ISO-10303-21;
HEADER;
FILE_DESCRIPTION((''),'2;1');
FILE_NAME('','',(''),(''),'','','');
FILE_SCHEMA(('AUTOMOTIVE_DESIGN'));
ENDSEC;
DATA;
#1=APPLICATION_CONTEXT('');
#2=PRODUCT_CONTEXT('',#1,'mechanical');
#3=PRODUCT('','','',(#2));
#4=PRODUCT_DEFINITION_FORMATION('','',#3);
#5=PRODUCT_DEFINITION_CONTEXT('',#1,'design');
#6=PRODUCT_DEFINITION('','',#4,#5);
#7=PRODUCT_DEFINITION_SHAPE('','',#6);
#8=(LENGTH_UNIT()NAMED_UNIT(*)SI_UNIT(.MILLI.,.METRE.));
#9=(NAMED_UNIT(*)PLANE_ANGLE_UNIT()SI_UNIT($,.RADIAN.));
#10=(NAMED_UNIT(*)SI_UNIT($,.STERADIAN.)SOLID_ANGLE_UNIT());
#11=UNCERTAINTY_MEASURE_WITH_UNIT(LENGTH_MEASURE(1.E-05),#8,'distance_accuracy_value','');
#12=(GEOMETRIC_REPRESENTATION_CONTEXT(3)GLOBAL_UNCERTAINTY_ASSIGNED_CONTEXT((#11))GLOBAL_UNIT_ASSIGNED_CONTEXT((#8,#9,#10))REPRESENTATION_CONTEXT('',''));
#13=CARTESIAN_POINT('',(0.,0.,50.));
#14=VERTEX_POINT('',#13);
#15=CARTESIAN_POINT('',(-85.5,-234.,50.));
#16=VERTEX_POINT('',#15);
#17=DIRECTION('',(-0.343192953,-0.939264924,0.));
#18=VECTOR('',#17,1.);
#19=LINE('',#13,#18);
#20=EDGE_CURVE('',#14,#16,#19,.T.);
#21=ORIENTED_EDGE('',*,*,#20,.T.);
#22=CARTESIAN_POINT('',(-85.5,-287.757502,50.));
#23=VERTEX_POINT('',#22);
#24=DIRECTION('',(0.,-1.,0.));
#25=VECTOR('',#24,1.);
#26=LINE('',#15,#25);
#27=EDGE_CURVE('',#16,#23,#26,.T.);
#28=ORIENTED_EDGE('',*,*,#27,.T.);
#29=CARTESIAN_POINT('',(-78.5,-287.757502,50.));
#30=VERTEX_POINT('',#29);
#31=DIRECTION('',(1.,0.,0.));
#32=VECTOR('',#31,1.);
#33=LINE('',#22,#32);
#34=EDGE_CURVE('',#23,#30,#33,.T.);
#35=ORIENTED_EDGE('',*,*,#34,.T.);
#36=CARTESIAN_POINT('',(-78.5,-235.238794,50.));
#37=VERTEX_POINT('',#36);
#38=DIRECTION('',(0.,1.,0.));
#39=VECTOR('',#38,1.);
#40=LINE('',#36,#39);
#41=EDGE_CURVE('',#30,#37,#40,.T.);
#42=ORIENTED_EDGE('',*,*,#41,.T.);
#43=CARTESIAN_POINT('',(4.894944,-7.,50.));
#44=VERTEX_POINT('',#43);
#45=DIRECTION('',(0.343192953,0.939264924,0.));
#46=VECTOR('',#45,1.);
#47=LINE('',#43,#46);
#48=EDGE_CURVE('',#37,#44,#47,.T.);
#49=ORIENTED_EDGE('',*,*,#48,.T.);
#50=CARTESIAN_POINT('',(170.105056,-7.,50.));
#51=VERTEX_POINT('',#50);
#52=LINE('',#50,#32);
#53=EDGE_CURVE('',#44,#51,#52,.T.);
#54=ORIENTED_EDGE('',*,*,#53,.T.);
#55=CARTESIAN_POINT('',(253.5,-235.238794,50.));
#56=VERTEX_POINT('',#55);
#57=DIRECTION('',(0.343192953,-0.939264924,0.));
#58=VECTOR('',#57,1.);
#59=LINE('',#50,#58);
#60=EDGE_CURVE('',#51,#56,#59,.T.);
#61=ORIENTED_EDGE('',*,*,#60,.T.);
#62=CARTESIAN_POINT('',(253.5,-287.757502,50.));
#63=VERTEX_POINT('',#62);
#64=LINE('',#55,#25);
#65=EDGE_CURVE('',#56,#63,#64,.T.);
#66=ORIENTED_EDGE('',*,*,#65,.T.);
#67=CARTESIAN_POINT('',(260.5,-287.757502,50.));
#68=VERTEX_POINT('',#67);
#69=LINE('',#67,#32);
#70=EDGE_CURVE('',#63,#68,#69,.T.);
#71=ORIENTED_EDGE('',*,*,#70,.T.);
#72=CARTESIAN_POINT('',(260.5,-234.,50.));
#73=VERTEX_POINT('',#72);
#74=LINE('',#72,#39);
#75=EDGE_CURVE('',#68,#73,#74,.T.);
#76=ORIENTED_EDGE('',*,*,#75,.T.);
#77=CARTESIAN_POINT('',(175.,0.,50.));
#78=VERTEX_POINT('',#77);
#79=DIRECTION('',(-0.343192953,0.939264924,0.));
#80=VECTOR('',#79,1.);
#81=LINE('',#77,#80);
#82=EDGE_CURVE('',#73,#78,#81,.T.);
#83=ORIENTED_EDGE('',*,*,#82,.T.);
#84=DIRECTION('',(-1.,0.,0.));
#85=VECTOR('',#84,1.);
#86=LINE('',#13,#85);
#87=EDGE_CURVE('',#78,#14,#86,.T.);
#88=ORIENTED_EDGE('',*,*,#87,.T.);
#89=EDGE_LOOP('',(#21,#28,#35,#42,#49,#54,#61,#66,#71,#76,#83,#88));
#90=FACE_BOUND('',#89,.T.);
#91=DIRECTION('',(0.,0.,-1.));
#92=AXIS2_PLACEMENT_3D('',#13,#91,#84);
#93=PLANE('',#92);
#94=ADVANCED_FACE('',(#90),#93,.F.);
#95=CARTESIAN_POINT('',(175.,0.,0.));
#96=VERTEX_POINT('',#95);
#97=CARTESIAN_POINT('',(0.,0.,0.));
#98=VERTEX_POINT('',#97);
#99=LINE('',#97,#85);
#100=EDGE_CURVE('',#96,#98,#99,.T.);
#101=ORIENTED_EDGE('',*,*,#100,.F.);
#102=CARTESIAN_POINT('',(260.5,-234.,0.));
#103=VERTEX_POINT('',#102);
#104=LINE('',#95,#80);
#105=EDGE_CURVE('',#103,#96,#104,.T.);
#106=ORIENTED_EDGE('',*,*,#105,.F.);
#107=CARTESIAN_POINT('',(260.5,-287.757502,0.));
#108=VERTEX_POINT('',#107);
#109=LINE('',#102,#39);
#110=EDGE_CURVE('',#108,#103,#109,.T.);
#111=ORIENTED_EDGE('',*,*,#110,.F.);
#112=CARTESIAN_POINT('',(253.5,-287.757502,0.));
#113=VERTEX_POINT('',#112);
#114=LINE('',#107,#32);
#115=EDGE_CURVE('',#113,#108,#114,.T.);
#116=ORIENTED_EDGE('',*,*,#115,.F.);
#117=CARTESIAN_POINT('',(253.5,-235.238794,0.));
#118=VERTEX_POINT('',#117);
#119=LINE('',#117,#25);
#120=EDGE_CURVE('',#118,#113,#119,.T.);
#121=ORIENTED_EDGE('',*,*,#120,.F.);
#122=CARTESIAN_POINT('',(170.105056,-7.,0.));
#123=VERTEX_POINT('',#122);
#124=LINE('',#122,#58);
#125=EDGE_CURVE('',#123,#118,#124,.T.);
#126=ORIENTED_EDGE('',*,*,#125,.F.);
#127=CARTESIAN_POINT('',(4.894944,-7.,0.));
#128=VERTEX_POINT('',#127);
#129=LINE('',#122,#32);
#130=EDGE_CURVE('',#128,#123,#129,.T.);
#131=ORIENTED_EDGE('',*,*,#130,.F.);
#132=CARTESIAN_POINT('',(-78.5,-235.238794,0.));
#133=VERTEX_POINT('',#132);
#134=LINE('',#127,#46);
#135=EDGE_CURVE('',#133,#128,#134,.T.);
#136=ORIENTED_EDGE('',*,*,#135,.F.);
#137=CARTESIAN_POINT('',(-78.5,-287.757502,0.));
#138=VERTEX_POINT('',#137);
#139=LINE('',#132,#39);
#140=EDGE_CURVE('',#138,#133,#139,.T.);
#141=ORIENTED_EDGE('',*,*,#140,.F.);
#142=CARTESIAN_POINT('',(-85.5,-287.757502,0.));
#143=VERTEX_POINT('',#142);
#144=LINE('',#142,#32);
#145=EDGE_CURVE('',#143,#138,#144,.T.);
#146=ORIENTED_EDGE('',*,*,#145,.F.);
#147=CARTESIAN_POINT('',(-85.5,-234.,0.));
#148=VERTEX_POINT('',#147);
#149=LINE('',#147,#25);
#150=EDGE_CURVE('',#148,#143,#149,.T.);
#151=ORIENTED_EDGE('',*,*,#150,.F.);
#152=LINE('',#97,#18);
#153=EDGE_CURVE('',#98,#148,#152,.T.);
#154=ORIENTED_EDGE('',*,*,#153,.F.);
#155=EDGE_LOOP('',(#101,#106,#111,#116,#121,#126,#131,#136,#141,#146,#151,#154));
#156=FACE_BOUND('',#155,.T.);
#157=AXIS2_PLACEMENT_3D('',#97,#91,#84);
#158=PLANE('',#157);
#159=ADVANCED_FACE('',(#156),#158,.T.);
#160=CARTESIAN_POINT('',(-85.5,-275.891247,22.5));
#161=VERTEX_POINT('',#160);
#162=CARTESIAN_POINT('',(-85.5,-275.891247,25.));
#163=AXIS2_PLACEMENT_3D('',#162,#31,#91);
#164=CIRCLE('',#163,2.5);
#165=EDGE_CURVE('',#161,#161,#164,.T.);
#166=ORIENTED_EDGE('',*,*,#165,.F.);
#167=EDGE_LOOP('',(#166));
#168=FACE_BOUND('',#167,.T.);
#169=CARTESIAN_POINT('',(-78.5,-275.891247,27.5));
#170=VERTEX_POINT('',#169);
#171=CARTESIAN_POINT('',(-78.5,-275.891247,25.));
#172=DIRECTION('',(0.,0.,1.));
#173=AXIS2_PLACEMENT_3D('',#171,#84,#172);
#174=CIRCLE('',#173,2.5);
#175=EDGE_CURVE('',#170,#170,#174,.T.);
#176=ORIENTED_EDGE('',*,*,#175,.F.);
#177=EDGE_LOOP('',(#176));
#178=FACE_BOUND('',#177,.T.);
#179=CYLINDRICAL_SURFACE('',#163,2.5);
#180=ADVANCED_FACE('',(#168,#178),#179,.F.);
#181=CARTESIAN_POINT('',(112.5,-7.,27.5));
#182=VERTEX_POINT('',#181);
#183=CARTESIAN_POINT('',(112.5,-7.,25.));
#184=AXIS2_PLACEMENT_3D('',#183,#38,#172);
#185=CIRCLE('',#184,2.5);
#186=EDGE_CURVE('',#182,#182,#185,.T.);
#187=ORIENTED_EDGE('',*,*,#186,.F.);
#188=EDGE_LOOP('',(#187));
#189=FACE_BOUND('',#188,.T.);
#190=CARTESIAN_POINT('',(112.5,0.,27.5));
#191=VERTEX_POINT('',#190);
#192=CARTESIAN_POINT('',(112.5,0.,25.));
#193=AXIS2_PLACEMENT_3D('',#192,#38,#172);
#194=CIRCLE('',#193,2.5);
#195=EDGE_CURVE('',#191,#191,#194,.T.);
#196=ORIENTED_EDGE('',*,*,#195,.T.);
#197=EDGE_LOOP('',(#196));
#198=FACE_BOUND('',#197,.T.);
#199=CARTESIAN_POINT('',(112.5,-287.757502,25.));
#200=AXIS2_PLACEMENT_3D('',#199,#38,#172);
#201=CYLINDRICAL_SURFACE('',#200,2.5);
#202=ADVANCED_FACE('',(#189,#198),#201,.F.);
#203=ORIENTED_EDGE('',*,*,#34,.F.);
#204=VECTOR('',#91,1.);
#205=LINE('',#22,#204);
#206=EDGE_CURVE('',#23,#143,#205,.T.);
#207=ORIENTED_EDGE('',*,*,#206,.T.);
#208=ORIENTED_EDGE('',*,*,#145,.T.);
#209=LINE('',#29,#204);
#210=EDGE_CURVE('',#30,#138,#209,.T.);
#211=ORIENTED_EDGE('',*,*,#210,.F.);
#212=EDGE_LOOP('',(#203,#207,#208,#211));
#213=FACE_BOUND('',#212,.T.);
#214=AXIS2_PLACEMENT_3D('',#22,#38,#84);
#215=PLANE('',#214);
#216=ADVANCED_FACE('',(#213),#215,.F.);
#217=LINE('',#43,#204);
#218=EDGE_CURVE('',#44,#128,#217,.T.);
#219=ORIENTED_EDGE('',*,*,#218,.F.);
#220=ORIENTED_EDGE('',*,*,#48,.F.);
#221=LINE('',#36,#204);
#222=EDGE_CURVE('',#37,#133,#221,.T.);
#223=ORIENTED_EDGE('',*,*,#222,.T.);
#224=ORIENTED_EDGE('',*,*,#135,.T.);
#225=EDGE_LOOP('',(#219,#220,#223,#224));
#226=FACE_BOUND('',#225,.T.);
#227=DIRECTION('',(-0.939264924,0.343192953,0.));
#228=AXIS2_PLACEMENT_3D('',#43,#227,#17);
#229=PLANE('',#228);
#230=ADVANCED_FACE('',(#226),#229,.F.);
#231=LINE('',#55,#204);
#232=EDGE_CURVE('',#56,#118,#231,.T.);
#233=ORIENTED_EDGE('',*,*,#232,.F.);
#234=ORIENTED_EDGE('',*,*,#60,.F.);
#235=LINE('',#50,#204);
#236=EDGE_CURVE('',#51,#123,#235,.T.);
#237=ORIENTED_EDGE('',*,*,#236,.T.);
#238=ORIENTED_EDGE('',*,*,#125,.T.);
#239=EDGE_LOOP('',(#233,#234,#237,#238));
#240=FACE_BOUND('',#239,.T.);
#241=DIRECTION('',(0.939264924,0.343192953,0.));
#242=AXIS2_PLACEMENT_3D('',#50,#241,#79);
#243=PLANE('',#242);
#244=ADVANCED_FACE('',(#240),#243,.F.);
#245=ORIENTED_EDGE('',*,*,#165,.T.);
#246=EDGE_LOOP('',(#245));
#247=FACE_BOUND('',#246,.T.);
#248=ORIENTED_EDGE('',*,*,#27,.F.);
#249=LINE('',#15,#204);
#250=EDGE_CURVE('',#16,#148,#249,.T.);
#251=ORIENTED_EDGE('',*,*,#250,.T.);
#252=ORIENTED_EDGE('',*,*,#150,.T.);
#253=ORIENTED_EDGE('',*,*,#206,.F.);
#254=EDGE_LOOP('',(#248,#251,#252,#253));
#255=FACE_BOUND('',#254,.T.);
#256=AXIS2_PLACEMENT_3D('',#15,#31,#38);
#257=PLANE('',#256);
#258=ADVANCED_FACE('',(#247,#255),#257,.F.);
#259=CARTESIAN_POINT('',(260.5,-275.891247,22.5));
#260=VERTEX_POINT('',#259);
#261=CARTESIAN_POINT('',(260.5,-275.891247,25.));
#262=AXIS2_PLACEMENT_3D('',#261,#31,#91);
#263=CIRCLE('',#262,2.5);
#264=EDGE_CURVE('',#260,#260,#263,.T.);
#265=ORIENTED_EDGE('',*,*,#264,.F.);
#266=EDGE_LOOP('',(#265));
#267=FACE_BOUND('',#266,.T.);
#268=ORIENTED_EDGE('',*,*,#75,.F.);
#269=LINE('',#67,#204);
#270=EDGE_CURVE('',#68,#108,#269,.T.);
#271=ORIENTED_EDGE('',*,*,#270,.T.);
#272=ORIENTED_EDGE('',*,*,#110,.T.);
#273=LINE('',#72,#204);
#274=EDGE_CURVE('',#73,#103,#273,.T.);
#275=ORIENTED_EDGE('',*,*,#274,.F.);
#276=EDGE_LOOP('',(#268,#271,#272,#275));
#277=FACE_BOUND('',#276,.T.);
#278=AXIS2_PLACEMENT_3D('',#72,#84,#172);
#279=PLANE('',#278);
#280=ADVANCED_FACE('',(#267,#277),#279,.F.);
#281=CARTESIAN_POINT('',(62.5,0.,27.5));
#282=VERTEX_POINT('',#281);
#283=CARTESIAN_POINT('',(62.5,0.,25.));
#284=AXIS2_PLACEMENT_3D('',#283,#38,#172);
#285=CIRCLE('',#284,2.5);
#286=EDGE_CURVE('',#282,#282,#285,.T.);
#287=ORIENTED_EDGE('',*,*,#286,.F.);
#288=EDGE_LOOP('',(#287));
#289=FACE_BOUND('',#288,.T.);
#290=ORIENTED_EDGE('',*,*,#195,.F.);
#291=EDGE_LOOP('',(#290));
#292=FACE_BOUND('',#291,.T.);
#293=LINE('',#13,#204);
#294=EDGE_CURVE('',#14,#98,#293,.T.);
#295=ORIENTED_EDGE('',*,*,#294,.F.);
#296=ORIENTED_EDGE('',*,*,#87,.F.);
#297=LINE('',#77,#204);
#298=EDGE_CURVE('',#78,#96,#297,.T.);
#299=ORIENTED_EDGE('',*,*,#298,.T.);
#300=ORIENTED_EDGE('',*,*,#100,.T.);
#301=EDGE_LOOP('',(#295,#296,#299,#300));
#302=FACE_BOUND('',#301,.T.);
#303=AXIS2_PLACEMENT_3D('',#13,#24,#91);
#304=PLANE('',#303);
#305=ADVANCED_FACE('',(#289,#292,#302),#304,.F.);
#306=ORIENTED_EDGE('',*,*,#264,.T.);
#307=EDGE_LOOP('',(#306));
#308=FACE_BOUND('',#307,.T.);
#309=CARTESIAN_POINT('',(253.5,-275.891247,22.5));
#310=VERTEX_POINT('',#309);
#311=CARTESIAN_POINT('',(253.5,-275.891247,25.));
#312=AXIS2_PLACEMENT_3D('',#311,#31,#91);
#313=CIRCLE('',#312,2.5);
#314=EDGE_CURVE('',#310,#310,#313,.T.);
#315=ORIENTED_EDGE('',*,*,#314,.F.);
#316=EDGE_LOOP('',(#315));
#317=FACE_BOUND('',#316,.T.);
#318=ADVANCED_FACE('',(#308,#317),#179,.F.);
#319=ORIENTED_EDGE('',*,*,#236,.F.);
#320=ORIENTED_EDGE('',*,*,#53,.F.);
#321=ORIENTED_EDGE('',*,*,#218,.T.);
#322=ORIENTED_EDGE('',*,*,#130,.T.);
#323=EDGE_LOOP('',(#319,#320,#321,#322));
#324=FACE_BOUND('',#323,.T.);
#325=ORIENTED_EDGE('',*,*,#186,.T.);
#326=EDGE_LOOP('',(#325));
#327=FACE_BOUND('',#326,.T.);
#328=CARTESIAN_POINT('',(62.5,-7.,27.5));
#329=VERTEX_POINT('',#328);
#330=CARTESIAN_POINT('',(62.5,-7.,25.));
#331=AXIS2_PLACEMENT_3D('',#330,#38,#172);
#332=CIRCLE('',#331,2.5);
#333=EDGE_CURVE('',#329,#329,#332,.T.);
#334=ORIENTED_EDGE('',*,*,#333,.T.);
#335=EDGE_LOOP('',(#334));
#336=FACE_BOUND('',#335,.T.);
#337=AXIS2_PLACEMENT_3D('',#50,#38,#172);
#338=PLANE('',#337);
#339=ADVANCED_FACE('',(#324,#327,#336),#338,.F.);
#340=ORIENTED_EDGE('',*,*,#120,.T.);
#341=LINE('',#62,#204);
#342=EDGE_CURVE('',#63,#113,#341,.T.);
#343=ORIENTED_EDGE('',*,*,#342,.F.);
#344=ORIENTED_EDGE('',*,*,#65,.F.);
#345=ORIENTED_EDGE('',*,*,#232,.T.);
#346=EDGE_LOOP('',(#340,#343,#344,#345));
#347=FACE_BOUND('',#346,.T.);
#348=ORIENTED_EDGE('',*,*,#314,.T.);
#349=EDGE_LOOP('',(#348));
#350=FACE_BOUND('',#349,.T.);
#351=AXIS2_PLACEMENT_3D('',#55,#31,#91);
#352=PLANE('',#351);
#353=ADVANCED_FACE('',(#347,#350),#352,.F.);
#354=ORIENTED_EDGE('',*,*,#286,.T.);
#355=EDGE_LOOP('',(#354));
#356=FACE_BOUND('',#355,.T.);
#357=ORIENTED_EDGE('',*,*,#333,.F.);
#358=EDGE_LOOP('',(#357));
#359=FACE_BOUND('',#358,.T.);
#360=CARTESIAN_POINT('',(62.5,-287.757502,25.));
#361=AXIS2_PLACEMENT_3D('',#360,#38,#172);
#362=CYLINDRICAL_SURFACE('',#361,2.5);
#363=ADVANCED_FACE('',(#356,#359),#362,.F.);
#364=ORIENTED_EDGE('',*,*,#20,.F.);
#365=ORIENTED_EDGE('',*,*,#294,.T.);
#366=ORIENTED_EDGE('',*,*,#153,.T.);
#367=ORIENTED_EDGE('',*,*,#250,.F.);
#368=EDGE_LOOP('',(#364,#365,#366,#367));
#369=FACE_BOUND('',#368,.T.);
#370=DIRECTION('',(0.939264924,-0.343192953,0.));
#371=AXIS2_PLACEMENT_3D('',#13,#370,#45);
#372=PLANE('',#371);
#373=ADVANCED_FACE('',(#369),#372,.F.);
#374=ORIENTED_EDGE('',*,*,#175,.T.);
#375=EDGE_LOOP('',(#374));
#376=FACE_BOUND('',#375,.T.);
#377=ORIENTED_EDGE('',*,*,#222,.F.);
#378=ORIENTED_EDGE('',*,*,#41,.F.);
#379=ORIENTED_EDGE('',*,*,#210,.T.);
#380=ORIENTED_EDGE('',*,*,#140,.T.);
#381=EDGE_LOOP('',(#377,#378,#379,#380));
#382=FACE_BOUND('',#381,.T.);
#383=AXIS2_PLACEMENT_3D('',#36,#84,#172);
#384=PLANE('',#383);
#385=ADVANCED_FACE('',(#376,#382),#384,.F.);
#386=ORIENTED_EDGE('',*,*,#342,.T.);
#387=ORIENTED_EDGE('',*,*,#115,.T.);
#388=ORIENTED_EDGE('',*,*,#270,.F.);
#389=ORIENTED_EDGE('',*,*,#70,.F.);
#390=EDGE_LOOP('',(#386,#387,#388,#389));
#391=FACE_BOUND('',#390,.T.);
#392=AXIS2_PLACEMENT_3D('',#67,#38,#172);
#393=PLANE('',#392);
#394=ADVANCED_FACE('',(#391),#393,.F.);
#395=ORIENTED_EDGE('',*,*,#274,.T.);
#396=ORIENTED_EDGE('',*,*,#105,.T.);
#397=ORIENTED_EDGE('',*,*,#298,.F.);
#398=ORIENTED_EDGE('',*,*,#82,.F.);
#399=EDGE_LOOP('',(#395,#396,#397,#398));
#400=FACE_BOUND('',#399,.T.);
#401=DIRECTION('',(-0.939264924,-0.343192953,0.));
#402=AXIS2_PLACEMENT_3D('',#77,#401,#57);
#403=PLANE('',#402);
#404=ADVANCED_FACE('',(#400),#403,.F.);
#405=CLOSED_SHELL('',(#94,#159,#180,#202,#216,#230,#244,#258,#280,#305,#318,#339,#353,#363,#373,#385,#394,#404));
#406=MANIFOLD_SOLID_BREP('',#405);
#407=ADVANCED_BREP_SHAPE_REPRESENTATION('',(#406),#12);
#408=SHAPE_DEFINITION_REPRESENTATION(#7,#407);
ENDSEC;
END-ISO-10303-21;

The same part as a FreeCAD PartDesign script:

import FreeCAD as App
import Part
import Sketcher

doc = App.newDocument("Part")
body = doc.addObject("PartDesign::Body", "Body")

sketch1 = body.newObject("Sketcher::SketchObject", "Sketch")
sketch1.AttachmentSupport = (doc.getObject("XY_Plane"), [""])
sketch1.MapMode = "FlatFace"
sketch1.addGeometry(Part.LineSegment(App.Vector(0, 0, 0), App.Vector(-85.5, -234, 0)), False)
sketch1.addGeometry(Part.LineSegment(App.Vector(-85.5, -234, 0), App.Vector(-85.5, -287.757502, 0)), False)
sketch1.addGeometry(Part.LineSegment(App.Vector(-85.5, -287.757502, 0), App.Vector(-78.5, -287.757502, 0)), False)
sketch1.addGeometry(Part.LineSegment(App.Vector(-78.5, -287.757502, 0), App.Vector(-78.5, -235.238794, 0)), False)
sketch1.addGeometry(Part.LineSegment(App.Vector(-78.5, -235.238794, 0), App.Vector(4.894944, -7, 0)), False)
sketch1.addGeometry(Part.LineSegment(App.Vector(4.894944, -7, 0), App.Vector(170.105056, -7, 0)), False)
sketch1.addGeometry(Part.LineSegment(App.Vector(170.105056, -7, 0), App.Vector(253.5, -235.238794, 0)), False)
sketch1.addGeometry(Part.LineSegment(App.Vector(253.5, -235.238794, 0), App.Vector(253.5, -287.757502, 0)), False)
sketch1.addGeometry(Part.LineSegment(App.Vector(253.5, -287.757502, 0), App.Vector(260.5, -287.757502, 0)), False)
sketch1.addGeometry(Part.LineSegment(App.Vector(260.5, -287.757502, 0), App.Vector(260.5, -234, 0)), False)
sketch1.addGeometry(Part.LineSegment(App.Vector(260.5, -234, 0), App.Vector(175, 0, 0)), False)
sketch1.addGeometry(Part.LineSegment(App.Vector(175, 0, 0), App.Vector(0, 0, 0)), False)
sketch1.addConstraint(Sketcher.Constraint("Coincident", 0, 2, 1, 1))
sketch1.addConstraint(Sketcher.Constraint("Coincident", 1, 2, 2, 1))
sketch1.addConstraint(Sketcher.Constraint("Coincident", 2, 2, 3, 1))
sketch1.addConstraint(Sketcher.Constraint("Coincident", 3, 2, 4, 1))
sketch1.addConstraint(Sketcher.Constraint("Coincident", 4, 2, 5, 1))
sketch1.addConstraint(Sketcher.Constraint("Coincident", 5, 2, 6, 1))
sketch1.addConstraint(Sketcher.Constraint("Coincident", 6, 2, 7, 1))
sketch1.addConstraint(Sketcher.Constraint("Coincident", 7, 2, 8, 1))
sketch1.addConstraint(Sketcher.Constraint("Coincident", 8, 2, 9, 1))
sketch1.addConstraint(Sketcher.Constraint("Coincident", 9, 2, 10, 1))
sketch1.addConstraint(Sketcher.Constraint("Coincident", 10, 2, 11, 1))
sketch1.addConstraint(Sketcher.Constraint("Coincident", 11, 2, 0, 1))
sketch1.addConstraint(Sketcher.Constraint("Vertical", 1))
sketch1.addConstraint(Sketcher.Constraint("Horizontal", 2))
sketch1.addConstraint(Sketcher.Constraint("Vertical", 3))
sketch1.addConstraint(Sketcher.Constraint("Horizontal", 5))
sketch1.addConstraint(Sketcher.Constraint("Vertical", 7))
sketch1.addConstraint(Sketcher.Constraint("Horizontal", 8))
sketch1.addConstraint(Sketcher.Constraint("Vertical", 9))
sketch1.addConstraint(Sketcher.Constraint("Horizontal", 11))
sketch1.addConstraint(Sketcher.Constraint("Coincident", 11, 2, -1, 1))
sketch1.addConstraint(Sketcher.Constraint("Parallel", 0, 4))
sketch1.addConstraint(Sketcher.Constraint("Parallel", 6, 10))
sketch1.addConstraint(Sketcher.Constraint("Horizontal", 3, 2, 6, 2))
sketch1.addConstraint(Sketcher.Constraint("Horizontal", 2, 2, 7, 2))
sketch1.addConstraint(Sketcher.Constraint("Horizontal", 0, 2, 9, 2))
sketch1.addConstraint(Sketcher.Constraint("Equal", 2, 8))
sketch1.addConstraint(Sketcher.Constraint("Equal", 4, 6))
sketch1.addConstraint(Sketcher.Constraint("DistanceX", 2, 1, 2, 2, 7.0))
sketch1.addConstraint(Sketcher.Constraint("DistanceX", 11, 2, 11, 1, 175.0))
sketch1.addConstraint(Sketcher.Constraint("DistanceY", 0, 2, -1, 1, 234.0))
sketch1.addConstraint(Sketcher.Constraint("DistanceY", 4, 2, -1, 1, 7.0))
sketch1.addConstraint(Sketcher.Constraint("DistanceX", 3, 2, 6, 2, 332.0))
sketch1.addConstraint(Sketcher.Constraint("DistanceY", 1, 2, 1, 1, 53.757502))
sketch1.addConstraint(Sketcher.Constraint("DistanceX", 5, 1, 5, 2, 165.210112))
pad1 = body.newObject("PartDesign::Pad", "Pad")
pad1.Profile = sketch1
pad1.Length = 50

sketch2 = body.newObject("Sketcher::SketchObject", "Sketch001")
sketch2.AttachmentSupport = (doc.getObject("YZ_Plane"), [""])
sketch2.MapMode = "FlatFace"
sketch2.AttachmentOffset = App.Placement(App.Vector(0, 0, 260.5), App.Rotation())
sketch2.addGeometry(Part.Circle(App.Vector(-275.891247, 25, 0), App.Vector(0, 0, 1), 2.5), False)
sketch2.addConstraint(Sketcher.Constraint("Diameter", 0, 5.0))
sketch2.addConstraint(Sketcher.Constraint("DistanceY", -1, 1, 0, 3, 25.0))
sketch2.addConstraint(Sketcher.Constraint("DistanceX", 0, 3, -1, 1, 275.891247))
pocket1 = body.newObject("PartDesign::Pocket", "Pocket")
pocket1.Profile = sketch2
pocket1.Type = "ThroughAll"

sketch3 = body.newObject("Sketcher::SketchObject", "Sketch002")
sketch3.AttachmentSupport = (doc.getObject("XZ_Plane"), [""])
sketch3.MapMode = "FlatFace"
sketch3.addGeometry(Part.Circle(App.Vector(112.5, 25, 0), App.Vector(0, 0, 1), 2.5), False)
sketch3.addGeometry(Part.Circle(App.Vector(62.5, 25, 0), App.Vector(0, 0, 1), 2.5), False)
sketch3.addConstraint(Sketcher.Constraint("Equal", 0, 1))
sketch3.addConstraint(Sketcher.Constraint("Horizontal", 0, 3, 1, 3))
sketch3.addConstraint(Sketcher.Constraint("Diameter", 0, 5.0))
sketch3.addConstraint(Sketcher.Constraint("DistanceY", -1, 1, 0, 3, 25.0))
sketch3.addConstraint(Sketcher.Constraint("DistanceX", 1, 3, 0, 3, 50.0))
sketch3.addConstraint(Sketcher.Constraint("DistanceX", -1, 1, 0, 3, 112.5))
pocket2 = body.newObject("PartDesign::Pocket", "Pocket001")
pocket2.Profile = sketch3
pocket2.Type = "ThroughAll"
pocket2.Reversed = True

doc.recompute()
